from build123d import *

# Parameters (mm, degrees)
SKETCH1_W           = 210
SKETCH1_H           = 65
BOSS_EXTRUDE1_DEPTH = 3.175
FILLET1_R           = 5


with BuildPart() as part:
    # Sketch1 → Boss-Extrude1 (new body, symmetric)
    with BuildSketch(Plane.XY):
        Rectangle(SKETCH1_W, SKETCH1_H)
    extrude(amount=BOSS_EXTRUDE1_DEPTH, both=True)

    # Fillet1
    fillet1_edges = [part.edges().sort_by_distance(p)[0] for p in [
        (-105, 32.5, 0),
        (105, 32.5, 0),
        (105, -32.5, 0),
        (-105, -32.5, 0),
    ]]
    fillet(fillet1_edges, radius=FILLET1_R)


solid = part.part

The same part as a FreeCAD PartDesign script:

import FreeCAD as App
import Part
import Sketcher

V = App.Vector


def edges_at(feature, points):
    """Names of the edges that pass closest to the given points."""
    edges = feature.Shape.Edges
    near = lambda p: min(range(len(edges)), key=lambda i: edges[i].distToShape(Part.Vertex(*p))[0])
    return sorted({f"Edge{near(p) + 1}" for p in points})

doc = App.newDocument("Part")
body = doc.addObject("PartDesign::Body", "Body")

# Sketch on XY plane
sketch1 = body.newObject("Sketcher::SketchObject", "Sketch")
sketch1.AttachmentSupport = (doc.getObject("XY_Plane"), [""])
sketch1.MapMode = "FlatFace"
sketch1.addGeometry(Part.LineSegment(V(-105, 32.5, 0), V(-105, -32.5, 0)), False)
sketch1.addGeometry(Part.LineSegment(V(-105, -32.5, 0), V(105, -32.5, 0)), False)
sketch1.addGeometry(Part.LineSegment(V(105, -32.5, 0), V(105, 32.5, 0)), False)
sketch1.addGeometry(Part.LineSegment(V(105, 32.5, 0), V(-105, 32.5, 0)), False)
sketch1.addConstraint(Sketcher.Constraint("Coincident", 0, 2, 1, 1))
sketch1.addConstraint(Sketcher.Constraint("Coincident", 1, 2, 2, 1))
sketch1.addConstraint(Sketcher.Constraint("Coincident", 2, 2, 3, 1))
sketch1.addConstraint(Sketcher.Constraint("Coincident", 3, 2, 0, 1))
sketch1.addConstraint(Sketcher.Constraint("Vertical", 0))
sketch1.addConstraint(Sketcher.Constraint("Horizontal", 1))
sketch1.addConstraint(Sketcher.Constraint("Vertical", 2))
sketch1.addConstraint(Sketcher.Constraint("Horizontal", 3))
sketch1.addConstraint(Sketcher.Constraint("Symmetric", 0, 2, 2, 2, -1, 1))
sketch1.addConstraint(Sketcher.Constraint("DistanceX", 1, 1, 1, 2, 210.0))
sketch1.addConstraint(Sketcher.Constraint("DistanceY", 0, 2, 0, 1, 65.0))
pad1 = body.newObject("PartDesign::Pad", "Pad")
pad1.Profile = sketch1
pad1.Length = 6.35
pad1.Midplane = True
doc.recompute()

fillet = body.newObject("PartDesign::Fillet", "Fillet")
fillet.Base = (pad1, edges_at(pad1, [
    (-105, 32.5, 0),
    (105, 32.5, 0),
    (105, -32.5, 0),
    (-105, -32.5, 0),
]))
fillet.Radius = 5

doc.recompute()
